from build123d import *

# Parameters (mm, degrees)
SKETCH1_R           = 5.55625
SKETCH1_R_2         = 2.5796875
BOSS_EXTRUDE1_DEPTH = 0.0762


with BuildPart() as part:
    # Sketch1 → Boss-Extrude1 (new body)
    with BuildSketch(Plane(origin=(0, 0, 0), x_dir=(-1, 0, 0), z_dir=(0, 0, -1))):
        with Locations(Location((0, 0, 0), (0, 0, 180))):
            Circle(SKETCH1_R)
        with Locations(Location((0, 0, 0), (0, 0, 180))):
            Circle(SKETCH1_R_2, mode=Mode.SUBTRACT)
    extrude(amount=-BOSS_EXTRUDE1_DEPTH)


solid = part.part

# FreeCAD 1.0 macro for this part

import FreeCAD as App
import Part
import Sketcher

V = App.Vector
Q = App.Units.Quantity

doc = App.newDocument("Part")
body = doc.addObject("PartDesign::Body", "Body")

sketch1 = body.newObject("Sketcher::SketchObject", "Sketch")
sketch1.AttachmentSupport = (doc.getObject("XY_Plane"), [""])
sketch1.MapMode = "FlatFace"
sketch1.addGeometry(Part.Circle(V(0, 0, 0), V(0, 0, 1), 5.6), False)
sketch1.addGeometry(Part.Circle(V(0, 0, 0), V(0, 0, 1), 2.6), False)
sketch1.addConstraint(Sketcher.Constraint("Coincident", 0, 3, -1, 1))
sketch1.addConstraint(Sketcher.Constraint("Coincident", 1, 3, -1, 1))
sketch1.addConstraint(Sketcher.Constraint("Diameter", 0, Q("0.4375 in")))
sketch1.addConstraint(Sketcher.Constraint("Diameter", 1, Q("0.203125 in")))
pad1 = body.newObject("PartDesign::Pad", "Pad")
pad1.Profile = sketch1
pad1.Length = Q("0.003 in")

doc.recompute()
